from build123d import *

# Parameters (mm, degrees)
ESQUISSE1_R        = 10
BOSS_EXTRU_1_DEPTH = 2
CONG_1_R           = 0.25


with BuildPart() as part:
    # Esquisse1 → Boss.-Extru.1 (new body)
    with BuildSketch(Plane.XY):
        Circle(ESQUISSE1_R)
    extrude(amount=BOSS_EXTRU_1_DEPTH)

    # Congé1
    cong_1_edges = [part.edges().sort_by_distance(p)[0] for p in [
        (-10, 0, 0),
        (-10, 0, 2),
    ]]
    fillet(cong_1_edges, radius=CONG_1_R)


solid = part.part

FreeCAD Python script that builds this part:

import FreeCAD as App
import Part
import Sketcher

V = App.Vector
Q = App.Units.Quantity


def edges_at(feature, points):
    """Names of the edges that pass closest to the given points."""
    edges = feature.Shape.Edges
    near = lambda p: min(range(len(edges)), key=lambda i: edges[i].distToShape(Part.Vertex(*p))[0])
    return sorted({f"Edge{near(p) + 1}" for p in points})

doc = App.newDocument("Part")
body = doc.addObject("PartDesign::Body", "Body")

# Sketch on XY plane
sketch1 = doc.addObject("Sketcher::SketchObject", "Sketch")
body.addObject(sketch1)
sketch1.AttachmentSupport = (doc.XY_Plane, [""])
sketch1.MapMode = "FlatFace"
sketch1.addGeometry(Part.Circle(V(0, 0, 0), V(0, 0, 1), 10), False)
sketch1.addConstraint(Sketcher.Constraint("Coincident", 0, 3, -1, 1))
sketch1.addConstraint(Sketcher.Constraint("Diameter", 0, Q("20 mm")))
pad1 = doc.addObject("PartDesign::Pad", "Pad")
body.addObject(pad1)
pad1.Profile = sketch1
pad1.Length = 2
doc.recompute()

fillet = doc.addObject("PartDesign::Fillet", "Fillet")
body.addObject(fillet)
fillet.Base = (pad1, edges_at(pad1, [(-10, 0, 0), (-10, 0, 2)]))
fillet.Radius = 0.25

doc.recompute()
